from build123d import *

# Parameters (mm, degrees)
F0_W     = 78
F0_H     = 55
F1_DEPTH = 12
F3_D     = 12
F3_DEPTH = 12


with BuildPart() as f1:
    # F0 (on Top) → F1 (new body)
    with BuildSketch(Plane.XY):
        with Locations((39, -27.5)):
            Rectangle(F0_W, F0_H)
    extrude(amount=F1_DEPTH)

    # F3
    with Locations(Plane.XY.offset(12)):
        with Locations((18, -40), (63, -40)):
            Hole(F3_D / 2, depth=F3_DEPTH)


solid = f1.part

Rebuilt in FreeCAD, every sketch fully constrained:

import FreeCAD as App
import Part
import Sketcher
Q = App.Units.Quantity


def add_polygon(sketch, points):
    """Adds a closed chain of lines whose ends are joined by coincident constraints."""
    first, n = sketch.GeometryCount, len(points)
    for a, b in zip(points, points[1:] + points[:1]):
        sketch.addGeometry(Part.LineSegment(App.Vector(*a, 0), App.Vector(*b, 0)), False)
    for i in range(n):
        sketch.addConstraint(Sketcher.Constraint("Coincident", first + i, 2, first + (i + 1) % n, 1))

doc = App.newDocument("Part")
body = doc.addObject("PartDesign::Body", "Body")

# Sketch on XY plane
sketch1 = body.newObject("Sketcher::SketchObject", "Sketch")
sketch1.AttachmentSupport = (doc.getObject("XY_Plane"), [""])
sketch1.MapMode = "FlatFace"
add_polygon(sketch1, [(0, 0), (0, -55), (78, -55), (78, 0)])  # lines 0-3
sketch1.addConstraint(Sketcher.Constraint("Vertical", 0))
sketch1.addConstraint(Sketcher.Constraint("Horizontal", 1))
sketch1.addConstraint(Sketcher.Constraint("Vertical", 2))
sketch1.addConstraint(Sketcher.Constraint("Horizontal", 3))
sketch1.addConstraint(Sketcher.Constraint("Coincident", 3, 2, -1, 1))
sketch1.addConstraint(Sketcher.Constraint("DistanceX", 1, 1, 1, 2, Q("78 mm")))
sketch1.addConstraint(Sketcher.Constraint("DistanceY", 0, 2, 0, 1, Q("55 mm")))
pad1 = body.newObject("PartDesign::Pad", "Pad")
pad1.Profile = sketch1
pad1.Length = 12

# Sketch on XY plane
sketch2 = body.newObject("Sketcher::SketchObject", "Sketch001")
sketch2.AttachmentSupport = (doc.getObject("XY_Plane"), [""])
sketch2.MapMode = "FlatFace"
sketch2.AttachmentOffset = App.Placement(App.Vector(0, 0, 12), App.Rotation())
sketch2.addGeometry(Part.Circle(App.Vector(18, -40, 0), App.Vector(0, 0, 1), 6), False)
sketch2.addGeometry(Part.Circle(App.Vector(63, -40, 0), App.Vector(0, 0, 1), 6), False)
sketch2.addConstraint(Sketcher.Constraint("Equal", 0, 1))
sketch2.addConstraint(Sketcher.Constraint("Horizontal", 0, 3, 1, 3))
sketch2.addConstraint(Sketcher.Constraint("Diameter", 0, Q("12 mm")))
sketch2.addConstraint(Sketcher.Constraint("DistanceX", -1, 1, 0, 3, Q("18 mm")))
sketch2.addConstraint(Sketcher.Constraint("DistanceY", 0, 3, -1, 1, Q("40 mm")))
sketch2.addConstraint(Sketcher.Constraint("DistanceX", -1, 1, 1, 3, Q("63 mm")))
doc.recompute()
hole = body.newObject("PartDesign::Hole", "Hole")
hole.Profile = sketch2
hole.ThreadType = "None"
hole.Diameter = 12
hole.DepthType = "Dimension"
hole.Depth = 12
hole.DrillPoint = "Flat"

doc.recompute()
